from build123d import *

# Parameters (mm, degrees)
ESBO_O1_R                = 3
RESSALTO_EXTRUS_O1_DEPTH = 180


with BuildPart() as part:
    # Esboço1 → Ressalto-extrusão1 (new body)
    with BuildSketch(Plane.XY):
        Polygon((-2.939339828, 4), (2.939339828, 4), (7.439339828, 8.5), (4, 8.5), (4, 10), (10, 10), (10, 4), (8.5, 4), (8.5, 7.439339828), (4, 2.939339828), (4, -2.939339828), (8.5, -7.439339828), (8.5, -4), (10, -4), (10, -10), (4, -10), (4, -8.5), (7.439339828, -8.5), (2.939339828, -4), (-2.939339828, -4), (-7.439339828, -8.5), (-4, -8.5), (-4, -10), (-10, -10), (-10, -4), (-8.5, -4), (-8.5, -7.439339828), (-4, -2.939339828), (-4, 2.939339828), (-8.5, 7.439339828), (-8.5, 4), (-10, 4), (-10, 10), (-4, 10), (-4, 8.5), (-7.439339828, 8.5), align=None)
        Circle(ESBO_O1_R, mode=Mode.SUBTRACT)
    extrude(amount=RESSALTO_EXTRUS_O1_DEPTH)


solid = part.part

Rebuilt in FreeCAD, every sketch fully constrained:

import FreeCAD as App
import Part
import Sketcher


def add_polygon(sketch, points):
    """Adds a closed chain of lines whose ends are joined by coincident constraints."""
    first, n = sketch.GeometryCount, len(points)
    for a, b in zip(points, points[1:] + points[:1]):
        sketch.addGeometry(Part.LineSegment(App.Vector(*a, 0), App.Vector(*b, 0)), False)
    for i in range(n):
        sketch.addConstraint(Sketcher.Constraint("Coincident", first + i, 2, first + (i + 1) % n, 1))

doc = App.newDocument("Part")
body = doc.addObject("PartDesign::Body", "Body")

sketch1 = body.newObject("Sketcher::SketchObject", "Sketch")
sketch1.AttachmentSupport = (doc.getObject("XY_Plane"), [""])
sketch1.MapMode = "FlatFace"
add_polygon(sketch1, [(2.9, 4), (-2.9, 4), (-7.4, 8.5), (-4, 8.5), (-4, 10), (-10, 10), (-10, 4), (-8.5, 4), (-8.5, 7.4), (-4, 2.9), (-4, -2.9), (-8.5, -7.4), (-8.5, -4), (-10, -4), (-10, -10), (-4, -10), (-4, -8.5), (-7.4, -8.5), (-2.9, -4), (2.9, -4), (7.4, -8.5), (4, -8.5), (4, -10), (10, -10), (10, -4), (8.5, -4), (8.5, -7.4), (4, -2.9), (4, 2.9), (8.5, 7.4), (8.5, 4), (10, 4), (10, 10), (4, 10), (4, 8.5), (7.4, 8.5)])
sketch1.addGeometry(Part.Circle(App.Vector(0, 0, 0), App.Vector(0, 0, 1), 3), False)
sketch1.addConstraint(Sketcher.Constraint("Horizontal", 0))
sketch1.addConstraint(Sketcher.Constraint("Horizontal", 2))
sketch1.addConstraint(Sketcher.Constraint("Vertical", 3))
sketch1.addConstraint(Sketcher.Constraint("Horizontal", 4))
sketch1.addConstraint(Sketcher.Constraint("Vertical", 5))
sketch1.addConstraint(Sketcher.Constraint("Horizontal", 6))
sketch1.addConstraint(Sketcher.Constraint("Vertical", 7))
sketch1.addConstraint(Sketcher.Constraint("Vertical", 9))
sketch1.addConstraint(Sketcher.Constraint("Vertical", 11))
sketch1.addConstraint(Sketcher.Constraint("Horizontal", 12))
sketch1.addConstraint(Sketcher.Constraint("Vertical", 13))
sketch1.addConstraint(Sketcher.Constraint("Horizontal", 14))
sketch1.addConstraint(Sketcher.Constraint("Vertical", 15))
sketch1.addConstraint(Sketcher.Constraint("Horizontal", 16))
sketch1.addConstraint(Sketcher.Constraint("Horizontal", 18))
sketch1.addConstraint(Sketcher.Constraint("Horizontal", 20))
sketch1.addConstraint(Sketcher.Constraint("Vertical", 21))
sketch1.addConstraint(Sketcher.Constraint("Horizontal", 22))
sketch1.addConstraint(Sketcher.Constraint("Vertical", 23))
sketch1.addConstraint(Sketcher.Constraint("Horizontal", 24))
sketch1.addConstraint(Sketcher.Constraint("Vertical", 25))
sketch1.addConstraint(Sketcher.Constraint("Vertical", 27))
sketch1.addConstraint(Sketcher.Constraint("Vertical", 29))
sketch1.addConstraint(Sketcher.Constraint("Horizontal", 30))
sketch1.addConstraint(Sketcher.Constraint("Vertical", 31))
sketch1.addConstraint(Sketcher.Constraint("Horizontal", 32))
sketch1.addConstraint(Sketcher.Constraint("Vertical", 33))
sketch1.addConstraint(Sketcher.Constraint("Horizontal", 34))
sketch1.addConstraint(Sketcher.Constraint("Coincident", 36, 3, -1, 1))
sketch1.addConstraint(Sketcher.Constraint("Symmetric", 0, 2, 18, 2, -1, 1))
sketch1.addConstraint(Sketcher.Constraint("Symmetric", 1, 2, 19, 2, -1, 1))
sketch1.addConstraint(Sketcher.Constraint("Symmetric", 3, 2, 21, 2, -1, 1))
sketch1.addConstraint(Sketcher.Constraint("Symmetric", 5, 2, 23, 2, -1, 1))
sketch1.addConstraint(Sketcher.Constraint("Symmetric", 7, 2, 25, 2, -1, 1))
sketch1.addConstraint(Sketcher.Constraint("Symmetric", 8, 2, 26, 2, -1, 1))
sketch1.addConstraint(Sketcher.Constraint("Symmetric", 10, 2, 28, 2, -1, 1))
sketch1.addConstraint(Sketcher.Constraint("Symmetric", 12, 2, 30, 2, -1, 1))
sketch1.addConstraint(Sketcher.Constraint("Symmetric", 14, 2, 32, 2, -1, 1))
sketch1.addConstraint(Sketcher.Constraint("Symmetric", 16, 2, 34, 2, -1, 1))
sketch1.addConstraint(Sketcher.Constraint("Symmetric", 16, 2, 19, 2, -2))
sketch1.addConstraint(Sketcher.Constraint("Symmetric", 14, 2, 21, 2, -2))
sketch1.addConstraint(Sketcher.Constraint("Symmetric", 12, 2, 23, 2, -2))
sketch1.addConstraint(Sketcher.Constraint("Symmetric", 10, 2, 25, 2, -2))
sketch1.addConstraint(Sketcher.Constraint("Parallel", 1, 8))
sketch1.addConstraint(Sketcher.Constraint("Perpendicular", 8, 10))
sketch1.addConstraint(Sketcher.Constraint("Parallel", 10, 17))
sketch1.addConstraint(Sketcher.Constraint("Perpendicular", 26, 28))
sketch1.addConstraint(Sketcher.Constraint("Parallel", 28, 35))
sketch1.addConstraint(Sketcher.Constraint("Horizontal", 0, 2, 5, 2))
sketch1.addConstraint(Sketcher.Constraint("Horizontal", 9, 2, 26, 2))
sketch1.addConstraint(Sketcher.Constraint("Vertical", 3, 2, 8, 2))
sketch1.addConstraint(Sketcher.Constraint("Equal", 30, 3))
sketch1.addConstraint(Sketcher.Constraint("Equal", 32, 5))
sketch1.addConstraint(Sketcher.Constraint("Equal", 34, 7))
sketch1.addConstraint(Sketcher.Constraint("Equal", 18, 9))
sketch1.addConstraint(Sketcher.Constraint("Diameter", 36, 6.0))
sketch1.addConstraint(Sketcher.Constraint("DistanceX", 4, 2, 4, 1, 6.0))
sketch1.addConstraint(Sketcher.Constraint("DistanceX", 6, 1, 6, 2, 1.5))
sketch1.addConstraint(Sketcher.Constraint("DistanceY", -1, 1, 0, 2, 4.0))
sketch1.addConstraint(Sketcher.Constraint("DistanceX", 0, 2, 0, 1, 5.87868))
pad1 = body.newObject("PartDesign::Pad", "Pad")
pad1.Profile = sketch1
pad1.Length = 180

doc.recompute()
